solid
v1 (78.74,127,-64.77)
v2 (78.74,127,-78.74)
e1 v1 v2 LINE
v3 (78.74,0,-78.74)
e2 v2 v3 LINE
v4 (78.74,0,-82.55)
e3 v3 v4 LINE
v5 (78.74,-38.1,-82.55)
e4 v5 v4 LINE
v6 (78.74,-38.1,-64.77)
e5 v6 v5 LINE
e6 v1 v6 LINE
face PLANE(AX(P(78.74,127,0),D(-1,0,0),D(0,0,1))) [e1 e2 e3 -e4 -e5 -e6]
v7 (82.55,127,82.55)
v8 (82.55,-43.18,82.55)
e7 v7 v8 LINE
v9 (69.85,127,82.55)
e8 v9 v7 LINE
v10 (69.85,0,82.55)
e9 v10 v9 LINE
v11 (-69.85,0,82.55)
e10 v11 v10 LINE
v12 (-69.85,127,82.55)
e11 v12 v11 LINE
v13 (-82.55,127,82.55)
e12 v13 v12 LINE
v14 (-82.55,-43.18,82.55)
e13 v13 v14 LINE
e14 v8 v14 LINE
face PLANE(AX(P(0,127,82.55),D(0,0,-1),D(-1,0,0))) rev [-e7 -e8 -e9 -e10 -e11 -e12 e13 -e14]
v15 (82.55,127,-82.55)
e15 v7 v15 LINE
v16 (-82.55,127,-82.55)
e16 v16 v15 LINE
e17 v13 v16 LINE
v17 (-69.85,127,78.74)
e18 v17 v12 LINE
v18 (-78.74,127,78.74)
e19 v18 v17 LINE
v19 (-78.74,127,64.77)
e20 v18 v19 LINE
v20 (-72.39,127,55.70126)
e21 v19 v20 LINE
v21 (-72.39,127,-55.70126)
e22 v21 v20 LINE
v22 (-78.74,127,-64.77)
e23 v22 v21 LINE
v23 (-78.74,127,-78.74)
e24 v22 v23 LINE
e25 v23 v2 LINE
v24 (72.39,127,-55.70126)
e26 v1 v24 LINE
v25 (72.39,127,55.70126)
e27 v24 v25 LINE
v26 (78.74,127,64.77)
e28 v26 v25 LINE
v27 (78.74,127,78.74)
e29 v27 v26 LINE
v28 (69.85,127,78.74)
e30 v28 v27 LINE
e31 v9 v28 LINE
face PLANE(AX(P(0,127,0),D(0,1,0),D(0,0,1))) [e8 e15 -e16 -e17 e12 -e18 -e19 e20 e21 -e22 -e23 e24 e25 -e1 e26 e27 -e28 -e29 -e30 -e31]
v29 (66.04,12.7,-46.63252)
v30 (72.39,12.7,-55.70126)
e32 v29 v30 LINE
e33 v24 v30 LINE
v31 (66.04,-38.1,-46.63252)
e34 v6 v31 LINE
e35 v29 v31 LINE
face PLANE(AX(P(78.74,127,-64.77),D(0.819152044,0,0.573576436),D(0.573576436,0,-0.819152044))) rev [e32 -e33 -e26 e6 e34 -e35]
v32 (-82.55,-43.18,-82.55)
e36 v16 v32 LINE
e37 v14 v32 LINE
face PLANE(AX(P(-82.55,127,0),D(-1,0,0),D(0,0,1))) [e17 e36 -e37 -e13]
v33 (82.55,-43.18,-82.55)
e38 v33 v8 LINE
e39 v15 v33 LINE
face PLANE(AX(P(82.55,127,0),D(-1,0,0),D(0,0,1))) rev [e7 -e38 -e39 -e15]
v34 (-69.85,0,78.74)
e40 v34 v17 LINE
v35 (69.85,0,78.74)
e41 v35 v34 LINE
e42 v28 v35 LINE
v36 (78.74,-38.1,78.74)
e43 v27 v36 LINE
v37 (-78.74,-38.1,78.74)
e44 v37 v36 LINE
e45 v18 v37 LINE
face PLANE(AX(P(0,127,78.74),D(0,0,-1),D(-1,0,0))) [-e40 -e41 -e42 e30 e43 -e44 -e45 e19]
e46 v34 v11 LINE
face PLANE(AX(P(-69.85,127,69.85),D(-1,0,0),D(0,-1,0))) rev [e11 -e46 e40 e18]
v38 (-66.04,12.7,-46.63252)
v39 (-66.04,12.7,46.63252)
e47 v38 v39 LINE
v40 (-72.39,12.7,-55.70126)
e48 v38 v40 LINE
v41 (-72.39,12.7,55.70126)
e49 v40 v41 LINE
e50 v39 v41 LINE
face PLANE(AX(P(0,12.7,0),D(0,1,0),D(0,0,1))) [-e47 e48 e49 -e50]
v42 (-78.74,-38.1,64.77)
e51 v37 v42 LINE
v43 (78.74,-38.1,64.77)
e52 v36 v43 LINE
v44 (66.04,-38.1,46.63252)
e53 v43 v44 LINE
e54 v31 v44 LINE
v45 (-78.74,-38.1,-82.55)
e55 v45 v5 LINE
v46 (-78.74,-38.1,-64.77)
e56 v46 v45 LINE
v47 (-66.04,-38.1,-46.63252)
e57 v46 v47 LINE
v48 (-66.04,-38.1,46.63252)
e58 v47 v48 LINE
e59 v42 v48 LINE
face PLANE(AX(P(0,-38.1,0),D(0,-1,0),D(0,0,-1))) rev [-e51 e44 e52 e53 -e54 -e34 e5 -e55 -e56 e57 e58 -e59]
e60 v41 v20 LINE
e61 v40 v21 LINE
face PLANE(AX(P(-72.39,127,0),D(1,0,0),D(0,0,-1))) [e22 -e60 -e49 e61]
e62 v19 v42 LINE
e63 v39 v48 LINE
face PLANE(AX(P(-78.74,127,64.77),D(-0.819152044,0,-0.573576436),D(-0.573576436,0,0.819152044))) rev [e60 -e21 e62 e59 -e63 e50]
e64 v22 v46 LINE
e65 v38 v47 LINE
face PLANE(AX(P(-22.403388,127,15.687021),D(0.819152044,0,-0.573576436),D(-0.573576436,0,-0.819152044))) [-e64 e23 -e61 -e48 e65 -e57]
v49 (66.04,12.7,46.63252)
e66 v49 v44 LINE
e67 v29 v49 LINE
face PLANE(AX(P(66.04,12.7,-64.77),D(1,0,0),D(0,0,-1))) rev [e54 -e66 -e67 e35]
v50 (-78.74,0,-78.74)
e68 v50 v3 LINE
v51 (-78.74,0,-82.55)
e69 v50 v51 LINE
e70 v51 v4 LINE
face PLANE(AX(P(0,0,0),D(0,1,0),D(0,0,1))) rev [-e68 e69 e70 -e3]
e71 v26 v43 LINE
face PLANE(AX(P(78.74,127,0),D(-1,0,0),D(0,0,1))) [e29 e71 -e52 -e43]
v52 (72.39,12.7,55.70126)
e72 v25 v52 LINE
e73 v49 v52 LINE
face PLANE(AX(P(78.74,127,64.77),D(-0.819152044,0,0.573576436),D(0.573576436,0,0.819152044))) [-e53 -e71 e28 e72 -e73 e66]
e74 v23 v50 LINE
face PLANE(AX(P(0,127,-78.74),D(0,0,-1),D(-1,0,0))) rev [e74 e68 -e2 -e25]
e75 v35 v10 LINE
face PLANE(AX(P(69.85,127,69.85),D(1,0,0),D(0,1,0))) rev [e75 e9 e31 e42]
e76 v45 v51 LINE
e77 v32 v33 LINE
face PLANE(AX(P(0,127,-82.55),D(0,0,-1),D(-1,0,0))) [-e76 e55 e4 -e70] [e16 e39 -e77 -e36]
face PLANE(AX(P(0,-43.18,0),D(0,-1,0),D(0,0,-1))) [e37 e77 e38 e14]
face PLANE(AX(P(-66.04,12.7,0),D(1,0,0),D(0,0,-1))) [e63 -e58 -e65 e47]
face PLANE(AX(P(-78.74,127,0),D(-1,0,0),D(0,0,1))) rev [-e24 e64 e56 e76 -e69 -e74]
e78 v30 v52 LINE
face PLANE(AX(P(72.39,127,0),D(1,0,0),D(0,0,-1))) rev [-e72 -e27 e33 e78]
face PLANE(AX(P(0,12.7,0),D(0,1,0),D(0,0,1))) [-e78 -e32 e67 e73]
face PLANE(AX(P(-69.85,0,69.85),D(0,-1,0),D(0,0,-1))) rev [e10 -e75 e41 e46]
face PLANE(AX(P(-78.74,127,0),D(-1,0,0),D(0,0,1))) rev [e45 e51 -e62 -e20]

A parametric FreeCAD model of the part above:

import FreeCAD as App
import Part
import Sketcher
from FreeCAD import Vector
Q = App.Units.Quantity

doc = App.newDocument("Part")
body = doc.addObject("PartDesign::Body", "Body")

# Sketch on XZ plane
sketch1 = body.newObject("Sketcher::SketchObject", "Sketch")
sketch1.AttachmentSupport = (doc.getObject("XZ_Plane"), [""])
sketch1.MapMode = "FlatFace"
sketch1.addGeometry([
    Part.LineSegment(Vector(-82.55, -82.55, 0), Vector(-82.55, 82.55, 0)),  # 0
    Part.LineSegment(Vector(-82.55, 82.55, 0), Vector(82.55, 82.55, 0)),  # 1
    Part.LineSegment(Vector(82.55, 82.55, 0), Vector(82.55, -82.55, 0)),  # 2
    Part.LineSegment(Vector(82.55, -82.55, 0), Vector(-82.55, -82.55, 0)),  # 3
    Part.LineSegment(Vector(-78.74, 78.74, 0), Vector(-78.74, 64.77, 0)),  # 4
    Part.LineSegment(Vector(-78.74, 64.77, 0), Vector(-72.39, 64.77, 0)),  # 5
    Part.LineSegment(Vector(-72.39, 64.77, 0), Vector(-72.39, -64.77, 0)),  # 6
    Part.LineSegment(Vector(-72.39, -64.77, 0), Vector(-78.74, -64.77, 0)),  # 7
    Part.LineSegment(Vector(-78.74, -64.77, 0), Vector(-78.74, -78.74, 0)),  # 8
    Part.LineSegment(Vector(-78.74, -78.74, 0), Vector(78.74, -78.74, 0)),  # 9
    Part.LineSegment(Vector(78.74, -78.74, 0), Vector(78.74, -64.77, 0)),  # 10
    Part.LineSegment(Vector(78.74, -64.77, 0), Vector(72.39, -64.77, 0)),  # 11
    Part.LineSegment(Vector(72.39, -64.77, 0), Vector(72.39, 64.77, 0)),  # 12
    Part.LineSegment(Vector(72.39, 64.77, 0), Vector(78.74, 64.77, 0)),  # 13
    Part.LineSegment(Vector(78.74, 64.77, 0), Vector(78.74, 78.74, 0)),  # 14
    Part.LineSegment(Vector(78.74, 78.74, 0), Vector(-78.74, 78.74, 0)),  # 15
], False)
sketch1.addConstraint([
    Sketcher.Constraint("Coincident", 0, 2, 1, 1),
    Sketcher.Constraint("Coincident", 1, 2, 2, 1),
    Sketcher.Constraint("Coincident", 2, 2, 3, 1),
    Sketcher.Constraint("Coincident", 3, 2, 0, 1),
    Sketcher.Constraint("Coincident", 4, 2, 5, 1),
    Sketcher.Constraint("Coincident", 5, 2, 6, 1),
    Sketcher.Constraint("Coincident", 6, 2, 7, 1),
    Sketcher.Constraint("Coincident", 7, 2, 8, 1),
    Sketcher.Constraint("Coincident", 8, 2, 9, 1),
    Sketcher.Constraint("Coincident", 9, 2, 10, 1),
    Sketcher.Constraint("Coincident", 10, 2, 11, 1),
    Sketcher.Constraint("Coincident", 11, 2, 12, 1),
    Sketcher.Constraint("Coincident", 12, 2, 13, 1),
    Sketcher.Constraint("Coincident", 13, 2, 14, 1),
    Sketcher.Constraint("Coincident", 14, 2, 15, 1),
    Sketcher.Constraint("Coincident", 15, 2, 4, 1),
    Sketcher.Constraint("Vertical", 0),
    Sketcher.Constraint("Horizontal", 1),
    Sketcher.Constraint("Vertical", 2),
    Sketcher.Constraint("Horizontal", 3),
    Sketcher.Constraint("Vertical", 4),
    Sketcher.Constraint("Horizontal", 5),
    Sketcher.Constraint("Vertical", 6),
    Sketcher.Constraint("Horizontal", 7),
    Sketcher.Constraint("Vertical", 8),
    Sketcher.Constraint("Horizontal", 9),
    Sketcher.Constraint("Vertical", 10),
    Sketcher.Constraint("Horizontal", 11),
    Sketcher.Constraint("Vertical", 12),
    Sketcher.Constraint("Horizontal", 13),
    Sketcher.Constraint("Vertical", 14),
    Sketcher.Constraint("Horizontal", 15),
    Sketcher.Constraint("Symmetric", 0, 2, 2, 2, -1, 1),
    Sketcher.Constraint("Symmetric", 4, 2, 10, 2, -1, 1),
    Sketcher.Constraint("Symmetric", 6, 2, 12, 2, -1, 1),
    Sketcher.Constraint("Symmetric", 8, 2, 14, 2, -1, 1),
    Sketcher.Constraint("Symmetric", 7, 2, 10, 2, -2),
    Sketcher.Constraint("Equal", 3, 0),
    Sketcher.Constraint("DistanceX", 1, 1, 1, 2, Q("6.5 in")),
    Sketcher.Constraint("DistanceX", 9, 1, 9, 2, Q("6.2 in")),
    Sketcher.Constraint("DistanceY", 6, 2, 6, 1, Q("5.1 in")),
    Sketcher.Constraint("DistanceX", 5, 1, 5, 2, Q("0.25 in")),
    Sketcher.Constraint("DistanceY", 4, 2, 4, 1, Q("0.55 in")),
])
pad1 = body.newObject("PartDesign::Pad", "Pad")
pad1.Profile = sketch1
pad1.Length = Q("5 in")
pad1.Reversed = True

# Sketch on XZ plane
sketch2 = body.newObject("Sketcher::SketchObject", "Sketch001")
sketch2.AttachmentSupport = (doc.getObject("XZ_Plane"), [""])
sketch2.MapMode = "FlatFace"
sketch2.addGeometry([
    Part.LineSegment(Vector(-82.55, 82.55, 0), Vector(-82.55, -82.55, 0)),  # 0
    Part.LineSegment(Vector(-82.55, -82.55, 0), Vector(-78.74, -82.55, 0)),  # 1
    Part.LineSegment(Vector(-78.74, -82.55, 0), Vector(-78.74, 78.74, 0)),  # 2
    Part.LineSegment(Vector(-78.74, 78.74, 0), Vector(78.74, 78.74, 0)),  # 3
    Part.LineSegment(Vector(78.74, 78.74, 0), Vector(78.74, -82.55, 0)),  # 4
    Part.LineSegment(Vector(78.74, -82.55, 0), Vector(82.55, -82.55, 0)),  # 5
    Part.LineSegment(Vector(82.55, -82.55, 0), Vector(82.55, 82.55, 0)),  # 6
    Part.LineSegment(Vector(82.55, 82.55, 0), Vector(-82.55, 82.55, 0)),  # 7
], False)
sketch2.addConstraint([
    Sketcher.Constraint("Coincident", 0, 2, 1, 1),
    Sketcher.Constraint("Coincident", 1, 2, 2, 1),
    Sketcher.Constraint("Coincident", 2, 2, 3, 1),
    Sketcher.Constraint("Coincident", 3, 2, 4, 1),
    Sketcher.Constraint("Coincident", 4, 2, 5, 1),
    Sketcher.Constraint("Coincident", 5, 2, 6, 1),
    Sketcher.Constraint("Coincident", 6, 2, 7, 1),
    Sketcher.Constraint("Coincident", 7, 2, 0, 1),
    Sketcher.Constraint("Vertical", 0),
    Sketcher.Constraint("Horizontal", 1),
    Sketcher.Constraint("Vertical", 2),
    Sketcher.Constraint("Horizontal", 3),
    Sketcher.Constraint("Vertical", 4),
    Sketcher.Constraint("Horizontal", 5),
    Sketcher.Constraint("Vertical", 6),
    Sketcher.Constraint("Horizontal", 7),
    Sketcher.Constraint("Symmetric", 0, 2, 6, 2, -1, 1),
    Sketcher.Constraint("Symmetric", 1, 2, 4, 2, -2),
    Sketcher.Constraint("Equal", 7, 0),
    Sketcher.Constraint("DistanceX", 3, 1, 3, 2, Q("6.2 in")),
    Sketcher.Constraint("DistanceX", 7, 2, 7, 1, Q("6.5 in")),
    Sketcher.Constraint("DistanceY", 2, 1, 2, 2, Q("6.35 in")),
])
pad2 = body.newObject("PartDesign::Pad", "Pad001")
pad2.Profile = sketch2
pad2.Length = Q("1.5 in")

# Sketch on XZ plane
sketch3 = body.newObject("Sketcher::SketchObject", "Sketch002")
sketch3.AttachmentSupport = (doc.getObject("XZ_Plane"), [""])
sketch3.MapMode = "FlatFace"
sketch3.AttachmentOffset = App.Placement(Vector(0, 0, 1.5 * 25.4), App.Rotation())
sketch3.addGeometry([
    Part.LineSegment(Vector(-82.55, 82.55, 0), Vector(-82.55, -82.55, 0)),
    Part.LineSegment(Vector(-82.55, -82.55, 0), Vector(82.55, -82.55, 0)),
    Part.LineSegment(Vector(82.55, -82.55, 0), Vector(82.55, 82.55, 0)),
    Part.LineSegment(Vector(82.55, 82.55, 0), Vector(-82.55, 82.55, 0)),
], False)
sketch3.addConstraint([
    Sketcher.Constraint("Coincident", 0, 2, 1, 1),
    Sketcher.Constraint("Coincident", 1, 2, 2, 1),
    Sketcher.Constraint("Coincident", 2, 2, 3, 1),
    Sketcher.Constraint("Coincident", 3, 2, 0, 1),
    Sketcher.Constraint("Vertical", 0),
    Sketcher.Constraint("Horizontal", 1),
    Sketcher.Constraint("Vertical", 2),
    Sketcher.Constraint("Horizontal", 3),
    Sketcher.Constraint("Symmetric", 0, 2, 2, 2, -1, 1),
    Sketcher.Constraint("Equal", 3, 0),
    Sketcher.Constraint("DistanceX", 1, 1, 1, 2, Q("6.5 in")),
])
pad3 = body.newObject("PartDesign::Pad", "Pad002")
pad3.Profile = sketch3
pad3.Length = Q("0.2 in")

# Sketch on XY plane
sketch4 = body.newObject("Sketcher::SketchObject", "Sketch003")
sketch4.AttachmentSupport = (doc.getObject("XY_Plane"), [""])
sketch4.MapMode = "FlatFace"
sketch4.AttachmentOffset = App.Placement(Vector(0, 0, 3.25 * 25.4), App.Rotation())
sketch4.addGeometry([
    Part.LineSegment(Vector(-69.85, 127, 0), Vector(-69.85, 0, 0)),
    Part.LineSegment(Vector(-69.85, 0, 0), Vector(69.85, 0, 0)),
    Part.LineSegment(Vector(69.85, 0, 0), Vector(69.85, 127, 0)),
    Part.LineSegment(Vector(69.85, 127, 0), Vector(-69.85, 127, 0)),
], False)
sketch4.addConstraint([
    Sketcher.Constraint("Coincident", 0, 2, 1, 1),
    Sketcher.Constraint("Coincident", 1, 2, 2, 1),
    Sketcher.Constraint("Coincident", 2, 2, 3, 1),
    Sketcher.Constraint("Coincident", 3, 2, 0, 1),
    Sketcher.Constraint("Vertical", 0),
    Sketcher.Constraint("Horizontal", 1),
    Sketcher.Constraint("Vertical", 2),
    Sketcher.Constraint("Horizontal", 3),
    Sketcher.Constraint("Symmetric", 0, 2, 1, 2, -1, 1),
    Sketcher.Constraint("DistanceY", 0, 2, 0, 1, Q("5 in")),
    Sketcher.Constraint("DistanceX", 1, 1, 1, 2, Q("5.5 in")),
])
pocket1 = body.newObject("PartDesign::Pocket", "Pocket")
pocket1.Profile = sketch4
pocket1.Length = Q("0.5 in")

# Sketch on XZ plane
sketch5 = body.newObject("Sketcher::SketchObject", "Sketch004")
sketch5.AttachmentSupport = (doc.getObject("XZ_Plane"), [""])
sketch5.MapMode = "FlatFace"
sketch5.addGeometry([
    Part.LineSegment(Vector(72.39, -64.77, 0), Vector(72.39, 64.77, 0)),  # 0
    Part.LineSegment(Vector(72.39, 64.77, 0), Vector(78.74, 64.77, 0)),  # 1
    Part.LineSegment(Vector(78.74, 64.77, 0), Vector(78.74, -64.77, 0)),  # 2
    Part.LineSegment(Vector(78.74, -64.77, 0), Vector(72.39, -64.77, 0)),  # 3
    Part.LineSegment(Vector(-78.74, -64.77, 0), Vector(-78.74, 64.77, 0)),  # 4
    Part.LineSegment(Vector(-78.74, 64.77, 0), Vector(-72.39, 64.77, 0)),  # 5
    Part.LineSegment(Vector(-72.39, 64.77, 0), Vector(-72.39, -64.77, 0)),  # 6
    Part.LineSegment(Vector(-72.39, -64.77, 0), Vector(-78.74, -64.77, 0)),  # 7
], False)
sketch5.addConstraint([
    Sketcher.Constraint("Coincident", 0, 2, 1, 1),
    Sketcher.Constraint("Coincident", 1, 2, 2, 1),
    Sketcher.Constraint("Coincident", 2, 2, 3, 1),
    Sketcher.Constraint("Coincident", 3, 2, 0, 1),
    Sketcher.Constraint("Coincident", 4, 2, 5, 1),
    Sketcher.Constraint("Coincident", 5, 2, 6, 1),
    Sketcher.Constraint("Coincident", 6, 2, 7, 1),
    Sketcher.Constraint("Coincident", 7, 2, 4, 1),
    Sketcher.Constraint("Vertical", 0),
    Sketcher.Constraint("Horizontal", 1),
    Sketcher.Constraint("Vertical", 2),
    Sketcher.Constraint("Horizontal", 3),
    Sketcher.Constraint("Vertical", 4),
    Sketcher.Constraint("Horizontal", 5),
    Sketcher.Constraint("Vertical", 6),
    Sketcher.Constraint("Horizontal", 7),
    Sketcher.Constraint("Symmetric", 2, 2, 4, 2, -1, 1),
    Sketcher.Constraint("Symmetric", 0, 2, 6, 2, -1, 1),
    Sketcher.Constraint("Horizontal", 1, 2, 4, 2),
    Sketcher.Constraint("DistanceY", 0, 1, 0, 2, Q("5.1 in")),
    Sketcher.Constraint("DistanceX", 1, 1, 1, 2, Q("0.25 in")),
    Sketcher.Constraint("DistanceX", -1, 1, 1, 2, Q("3.1 in")),
])
pad4 = body.newObject("PartDesign::Pad", "Pad003")
pad4.Profile = sketch5
pad4.Length = Q("1.64 in")

# Sketch on XZ plane
sketch6 = body.newObject("Sketcher::SketchObject", "Sketch005")
sketch6.AttachmentSupport = (doc.getObject("XZ_Plane"), [""])
sketch6.MapMode = "FlatFace"
sketch6.AttachmentOffset = App.Placement(Vector(0, 0, 1.5 * 25.4), App.Rotation())
sketch6.addGeometry([
    Part.LineSegment(Vector(-72.39, -64.77, 0), Vector(-72.39, 64.77, 0)),  # 0
    Part.LineSegment(Vector(-72.39, 64.77, 0), Vector(-66.04, 64.77, 0)),  # 1
    Part.LineSegment(Vector(-66.04, 64.77, 0), Vector(-66.04, -64.77, 0)),  # 2
    Part.LineSegment(Vector(-66.04, -64.77, 0), Vector(-72.39, -64.77, 0)),  # 3
    Part.LineSegment(Vector(66.04, -64.77, 0), Vector(66.04, 64.77, 0)),  # 4
    Part.LineSegment(Vector(66.04, 64.77, 0), Vector(72.39, 64.77, 0)),  # 5
    Part.LineSegment(Vector(72.39, 64.77, 0), Vector(72.39, -64.77, 0)),  # 6
    Part.LineSegment(Vector(72.39, -64.77, 0), Vector(66.04, -64.77, 0)),  # 7
], False)
sketch6.addConstraint([
    Sketcher.Constraint("Coincident", 0, 2, 1, 1),
    Sketcher.Constraint("Coincident", 1, 2, 2, 1),
    Sketcher.Constraint("Coincident", 2, 2, 3, 1),
    Sketcher.Constraint("Coincident", 3, 2, 0, 1),
    Sketcher.Constraint("Coincident", 4, 2, 5, 1),
    Sketcher.Constraint("Coincident", 5, 2, 6, 1),
    Sketcher.Constraint("Coincident", 6, 2, 7, 1),
    Sketcher.Constraint("Coincident", 7, 2, 4, 1),
    Sketcher.Constraint("Vertical", 0),
    Sketcher.Constraint("Horizontal", 1),
    Sketcher.Constraint("Vertical", 2),
    Sketcher.Constraint("Horizontal", 3),
    Sketcher.Constraint("Vertical", 4),
    Sketcher.Constraint("Horizontal", 5),
    Sketcher.Constraint("Vertical", 6),
    Sketcher.Constraint("Horizontal", 7),
    Sketcher.Constraint("Symmetric", 2, 2, 4, 2, -1, 1),
    Sketcher.Constraint("Symmetric", 0, 2, 6, 2, -1, 1),
    Sketcher.Constraint("Horizontal", 1, 2, 4, 2),
    Sketcher.Constraint("DistanceY", 0, 1, 0, 2, Q("5.1 in")),
    Sketcher.Constraint("DistanceX", 1, 1, 1, 2, Q("0.25 in")),
    Sketcher.Constraint("DistanceX", 1, 2, -1, 1, Q("2.6 in")),
])
pad5 = body.newObject("PartDesign::Pad", "Pad004")
pad5.Profile = sketch6
pad5.Length = Q("2 in")
pad5.Reversed = True

# Sketch on XZ plane
sketch7 = body.newObject("Sketcher::SketchObject", "Sketch006")
sketch7.AttachmentSupport = (doc.getObject("XZ_Plane"), [""])
sketch7.MapMode = "FlatFace"
sketch7.AttachmentOffset = App.Placement(Vector(0, 0, 1.5 * 25.4), App.Rotation())
sketch7.addGeometry([
    Part.LineSegment(Vector(-78.74, -64.77, 0), Vector(-66.04, -46.63252, 0)),  # 0
    Part.LineSegment(Vector(-66.04, -46.63252, 0), Vector(-66.04, -64.77, 0)),  # 1
    Part.LineSegment(Vector(-66.04, -64.77, 0), Vector(-78.74, -64.77, 0)),  # 2
    Part.LineSegment(Vector(-78.74, 64.77, 0), Vector(-66.04, 64.77, 0)),  # 3
    Part.LineSegment(Vector(-66.04, 64.77, 0), Vector(-66.04, 46.63252, 0)),  # 4
    Part.LineSegment(Vector(-66.04, 46.63252, 0), Vector(-78.74, 64.77, 0)),  # 5
    Part.LineSegment(Vector(66.04, 64.77, 0), Vector(78.74, 64.77, 0)),  # 6
    Part.LineSegment(Vector(78.74, 64.77, 0), Vector(66.04, 46.63252, 0)),  # 7
    Part.LineSegment(Vector(66.04, 46.63252, 0), Vector(66.04, 64.77, 0)),  # 8
    Part.LineSegment(Vector(66.04, -64.77, 0), Vector(66.04, -46.63252, 0)),  # 9
    Part.LineSegment(Vector(66.04, -46.63252, 0), Vector(78.74, -64.77, 0)),  # 10
    Part.LineSegment(Vector(78.74, -64.77, 0), Vector(66.04, -64.77, 0)),  # 11
], False)
sketch7.addConstraint([
    Sketcher.Constraint("Coincident", 0, 2, 1, 1),
    Sketcher.Constraint("Coincident", 1, 2, 2, 1),
    Sketcher.Constraint("Coincident", 2, 2, 0, 1),
    Sketcher.Constraint("Coincident", 3, 2, 4, 1),
    Sketcher.Constraint("Coincident", 4, 2, 5, 1),
    Sketcher.Constraint("Coincident", 5, 2, 3, 1),
    Sketcher.Constraint("Coincident", 6, 2, 7, 1),
    Sketcher.Constraint("Coincident", 7, 2, 8, 1),
    Sketcher.Constraint("Coincident", 8, 2, 6, 1),
    Sketcher.Constraint("Coincident", 9, 2, 10, 1),
    Sketcher.Constraint("Coincident", 10, 2, 11, 1),
    Sketcher.Constraint("Coincident", 11, 2, 9, 1),
    Sketcher.Constraint("Vertical", 1),
    Sketcher.Constraint("Horizontal", 2),
    Sketcher.Constraint("Horizontal", 3),
    Sketcher.Constraint("Vertical", 4),
    Sketcher.Constraint("Horizontal", 6),
    Sketcher.Constraint("Vertical", 8),
    Sketcher.Constraint("Vertical", 9),
    Sketcher.Constraint("Horizontal", 11),
    Sketcher.Constraint("Symmetric", 2, 2, 6, 2, -1, 1),
    Sketcher.Constraint("Symmetric", 0, 2, 7, 2, -1, 1),
    Sketcher.Constraint("Symmetric", 4, 2, 9, 2, -1, 1),
    Sketcher.Constraint("Symmetric", 5, 2, 10, 2, -1, 1),
    Sketcher.Constraint("Symmetric", 5, 2, 6, 2, -2),
    Sketcher.Constraint("Symmetric", 4, 2, 7, 2, -2),
    Sketcher.Constraint("DistanceX", 2, 2, 2, 1, Q("0.5 in")),
    Sketcher.Constraint("Angle", 0, Q("55 deg")),
    Sketcher.Constraint("DistanceX", 0, 2, -1, 1, Q("2.6 in")),
    Sketcher.Constraint("DistanceY", 1, 2, 3, 2, Q("5.1 in")),
])
pocket2 = body.newObject("PartDesign::Pocket", "Pocket001")
pocket2.Profile = sketch7
pocket2.Type = "ThroughAll"

doc.recompute()
